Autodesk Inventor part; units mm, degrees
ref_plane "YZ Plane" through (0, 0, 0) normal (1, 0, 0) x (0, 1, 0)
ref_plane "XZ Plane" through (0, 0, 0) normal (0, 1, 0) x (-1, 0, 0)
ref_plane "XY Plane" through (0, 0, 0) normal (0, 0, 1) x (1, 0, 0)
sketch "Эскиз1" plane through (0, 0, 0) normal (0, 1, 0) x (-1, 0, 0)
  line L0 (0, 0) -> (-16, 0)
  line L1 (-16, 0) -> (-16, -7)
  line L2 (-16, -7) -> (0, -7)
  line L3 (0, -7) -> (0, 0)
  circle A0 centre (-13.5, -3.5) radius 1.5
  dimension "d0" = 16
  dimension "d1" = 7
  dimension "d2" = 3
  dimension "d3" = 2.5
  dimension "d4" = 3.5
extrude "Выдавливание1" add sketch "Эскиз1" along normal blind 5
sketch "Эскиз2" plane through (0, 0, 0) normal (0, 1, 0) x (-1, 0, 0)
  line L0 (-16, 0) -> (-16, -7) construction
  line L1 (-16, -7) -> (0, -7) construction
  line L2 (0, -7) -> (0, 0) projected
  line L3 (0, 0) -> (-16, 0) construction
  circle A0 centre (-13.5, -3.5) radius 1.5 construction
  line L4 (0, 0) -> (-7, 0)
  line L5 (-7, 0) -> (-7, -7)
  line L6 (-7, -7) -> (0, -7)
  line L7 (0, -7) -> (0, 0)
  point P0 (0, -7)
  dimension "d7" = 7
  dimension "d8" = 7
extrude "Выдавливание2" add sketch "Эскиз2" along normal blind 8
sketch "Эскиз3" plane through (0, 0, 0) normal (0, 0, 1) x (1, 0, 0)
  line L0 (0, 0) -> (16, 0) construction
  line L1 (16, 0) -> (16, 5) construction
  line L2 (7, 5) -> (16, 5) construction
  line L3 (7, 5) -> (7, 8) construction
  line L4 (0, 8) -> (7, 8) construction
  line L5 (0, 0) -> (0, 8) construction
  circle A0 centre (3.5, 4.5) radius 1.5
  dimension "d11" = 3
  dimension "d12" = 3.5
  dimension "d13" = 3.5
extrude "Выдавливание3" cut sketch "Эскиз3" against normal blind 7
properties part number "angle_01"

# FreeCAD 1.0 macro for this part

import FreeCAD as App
import Part
import Sketcher
from FreeCAD import Vector
Q = App.Units.Quantity

doc = App.newDocument("Part")
body = doc.addObject("PartDesign::Body", "Body")

sketch1 = doc.addObject("Sketcher::SketchObject", "Sketch")
body.addObject(sketch1)
sketch1.AttachmentSupport = (doc.XZ_Plane, [""])
sketch1.MapMode = "FlatFace"
sketch1.addGeometry([
    Part.LineSegment(Vector(0, -7, 0), Vector(0, 0, 0)),
    Part.LineSegment(Vector(0, 0, 0), Vector(16, 0, 0)),
    Part.LineSegment(Vector(16, 0, 0), Vector(16, -7, 0)),
    Part.LineSegment(Vector(16, -7, 0), Vector(0, -7, 0)),
    Part.Circle(Vector(13.5, -3.5, 0), Vector(0, 0, 1), 1.5),
], False)
sketch1.addConstraint([
    Sketcher.Constraint("Coincident", 0, 2, 1, 1),
    Sketcher.Constraint("Coincident", 1, 2, 2, 1),
    Sketcher.Constraint("Coincident", 2, 2, 3, 1),
    Sketcher.Constraint("Coincident", 3, 2, 0, 1),
    Sketcher.Constraint("Vertical", 0),
    Sketcher.Constraint("Horizontal", 1),
    Sketcher.Constraint("Vertical", 2),
    Sketcher.Constraint("Horizontal", 3),
    Sketcher.Constraint("Coincident", 0, 2, -1, 1),
    Sketcher.Constraint("Diameter", 4, Q("3 mm")),
    Sketcher.Constraint("DistanceX", 1, 1, 1, 2, Q("16 mm")),
    Sketcher.Constraint("DistanceY", 0, 1, 0, 2, Q("7 mm")),
    Sketcher.Constraint("DistanceY", 4, 3, -1, 1, Q("3.5 mm")),
    Sketcher.Constraint("DistanceX", 4, 3, 1, 2, Q("2.5 mm")),
])
pad1 = doc.addObject("PartDesign::Pad", "Pad")
body.addObject(pad1)
pad1.Profile = sketch1
pad1.Length = 5
pad1.Reversed = True

sketch2 = doc.addObject("Sketcher::SketchObject", "Sketch001")
body.addObject(sketch2)
sketch2.AttachmentSupport = (doc.XZ_Plane, [""])
sketch2.MapMode = "FlatFace"
sketch2.addGeometry([
    Part.LineSegment(Vector(7, -7, 0), Vector(0, -7, 0)),
    Part.LineSegment(Vector(0, -7, 0), Vector(0, 0, 0)),
    Part.LineSegment(Vector(0, 0, 0), Vector(7, 0, 0)),
    Part.LineSegment(Vector(7, 0, 0), Vector(7, -7, 0)),
], False)
sketch2.addConstraint([
    Sketcher.Constraint("Coincident", 0, 2, 1, 1),
    Sketcher.Constraint("Coincident", 1, 2, 2, 1),
    Sketcher.Constraint("Coincident", 2, 2, 3, 1),
    Sketcher.Constraint("Coincident", 3, 2, 0, 1),
    Sketcher.Constraint("Horizontal", 0),
    Sketcher.Constraint("Vertical", 1),
    Sketcher.Constraint("Horizontal", 2),
    Sketcher.Constraint("Vertical", 3),
    Sketcher.Constraint("Coincident", 1, 2, -1, 1),
    Sketcher.Constraint("Equal", 2, 1),
    Sketcher.Constraint("DistanceX", 0, 2, 0, 1, Q("7 mm")),
])
pad2 = doc.addObject("PartDesign::Pad", "Pad001")
body.addObject(pad2)
pad2.Profile = sketch2
pad2.Length = 8
pad2.Reversed = True

sketch3 = doc.addObject("Sketcher::SketchObject", "Sketch002")
body.addObject(sketch3)
sketch3.AttachmentSupport = (doc.XY_Plane, [""])
sketch3.MapMode = "FlatFace"
sketch3.addGeometry(Part.Circle(Vector(3.5, 4.5, 0), Vector(0, 0, 1), 1.5), False)
sketch3.addConstraint([
    Sketcher.Constraint("Diameter", 0, Q("3 mm")),
    Sketcher.Constraint("DistanceX", -1, 1, 0, 3, Q("3.5 mm")),
    Sketcher.Constraint("DistanceY", -1, 1, 0, 3, Q("4.5 mm")),
])
pocket1 = doc.addObject("PartDesign::Pocket", "Pocket")
body.addObject(pocket1)
pocket1.Profile = sketch3
pocket1.Length = 7

doc.recompute()
